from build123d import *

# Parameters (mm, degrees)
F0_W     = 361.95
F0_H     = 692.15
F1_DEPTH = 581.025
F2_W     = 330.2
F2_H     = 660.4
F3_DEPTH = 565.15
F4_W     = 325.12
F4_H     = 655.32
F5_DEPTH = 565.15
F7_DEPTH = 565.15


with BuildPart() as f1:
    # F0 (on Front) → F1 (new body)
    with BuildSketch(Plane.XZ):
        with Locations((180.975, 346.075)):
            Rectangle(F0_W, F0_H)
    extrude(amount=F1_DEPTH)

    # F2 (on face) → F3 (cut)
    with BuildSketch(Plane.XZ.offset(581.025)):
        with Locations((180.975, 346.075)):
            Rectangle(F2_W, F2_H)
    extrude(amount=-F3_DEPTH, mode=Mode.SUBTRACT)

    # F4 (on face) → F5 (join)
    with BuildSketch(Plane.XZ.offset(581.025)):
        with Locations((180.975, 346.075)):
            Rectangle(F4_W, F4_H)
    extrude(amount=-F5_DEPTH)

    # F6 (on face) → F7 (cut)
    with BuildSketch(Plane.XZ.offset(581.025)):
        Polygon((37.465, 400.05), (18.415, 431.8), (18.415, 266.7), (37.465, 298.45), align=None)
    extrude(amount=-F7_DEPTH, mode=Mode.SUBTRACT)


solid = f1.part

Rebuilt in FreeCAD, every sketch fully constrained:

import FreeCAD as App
import Part
import Sketcher

V = App.Vector
Q = App.Units.Quantity

doc = App.newDocument("Part")
params = doc.addObject("Spreadsheet::Sheet", "Params")
for row, (alias, value) in enumerate([
    ("sketch1_width", "14.25 in"),
    ("sketch1_height", "27.25 in"),
    ("pad1_length", "22.875 in"),
    ("sketch2_width", "13 in"),
    ("sketch2_height", "26 in"),
    ("pocket1_length", "22.25 in"),
    ("sketch3_width", "12.8 in"),
    ("sketch3_height", "25.8 in"),
    ("pad2_length", "22.25 in"),
    ("sketch4_height", "4 in"),
    ("sketch4_height2", "6.5 in"),
    ("pocket2_length", "22.25 in"),
], start=1):
    params.set(f"A{row}", alias)
    params.set(f"B{row}", "=" + value)
    params.setAlias(f"B{row}", alias)

body = doc.addObject("PartDesign::Body", "Body")

sketch1 = body.newObject("Sketcher::SketchObject", "Sketch")
sketch1.AttachmentSupport = (doc.getObject("XZ_Plane"), [""])
sketch1.MapMode = "FlatFace"
sketch1.addGeometry([
    Part.LineSegment(V(0, 692, 0), V(0, 0, 0)),
    Part.LineSegment(V(0, 0, 0), V(362, 0, 0)),
    Part.LineSegment(V(362, 0, 0), V(362, 692, 0)),
    Part.LineSegment(V(362, 692, 0), V(0, 692, 0)),
], False)
sketch1.addConstraint([
    Sketcher.Constraint("Coincident", 0, 2, 1, 1),
    Sketcher.Constraint("Coincident", 1, 2, 2, 1),
    Sketcher.Constraint("Coincident", 2, 2, 3, 1),
    Sketcher.Constraint("Coincident", 3, 2, 0, 1),
    Sketcher.Constraint("Vertical", 0),
    Sketcher.Constraint("Horizontal", 1),
    Sketcher.Constraint("Vertical", 2),
    Sketcher.Constraint("Horizontal", 3),
    Sketcher.Constraint("Coincident", 0, 2, -1, 1),
    Sketcher.Constraint("DistanceX", 1, 1, 1, 2, Q("14.25 in")),
    Sketcher.Constraint("DistanceY", 0, 2, 0, 1, Q("27.25 in")),
])
sketch1.setExpression("Constraints[9]", "Params.sketch1_width")
sketch1.setExpression("Constraints[10]", "Params.sketch1_height")
pad1 = body.newObject("PartDesign::Pad", "Pad")
pad1.Profile = sketch1
pad1.setExpression("Length", "Params.pad1_length")

sketch2 = body.newObject("Sketcher::SketchObject", "Sketch001")
sketch2.AttachmentSupport = (doc.getObject("XZ_Plane"), [""])
sketch2.MapMode = "FlatFace"
sketch2.AttachmentOffset = App.Placement(V(0, 0, 22.875 * 25.4), App.Rotation())
sketch2.addGeometry([
    Part.LineSegment(V(16, 676, 0), V(16, 16, 0)),
    Part.LineSegment(V(16, 16, 0), V(346, 16, 0)),
    Part.LineSegment(V(346, 16, 0), V(346, 676, 0)),
    Part.LineSegment(V(346, 676, 0), V(16, 676, 0)),
], False)
sketch2.addConstraint([
    Sketcher.Constraint("Coincident", 0, 2, 1, 1),
    Sketcher.Constraint("Coincident", 1, 2, 2, 1),
    Sketcher.Constraint("Coincident", 2, 2, 3, 1),
    Sketcher.Constraint("Coincident", 3, 2, 0, 1),
    Sketcher.Constraint("Vertical", 0),
    Sketcher.Constraint("Horizontal", 1),
    Sketcher.Constraint("Vertical", 2),
    Sketcher.Constraint("Horizontal", 3),
    Sketcher.Constraint("DistanceX", 1, 1, 1, 2, Q("13 in")),
    Sketcher.Constraint("DistanceY", 0, 2, 0, 1, Q("26 in")),
    Sketcher.Constraint("DistanceX", -1, 1, 0, 2, Q("0.625 in")),
    Sketcher.Constraint("DistanceY", -1, 1, 0, 2, Q("0.625 in")),
])
sketch2.setExpression("Constraints[8]", "Params.sketch2_width")
sketch2.setExpression("Constraints[9]", "Params.sketch2_height")
pocket1 = body.newObject("PartDesign::Pocket", "Pocket")
pocket1.Profile = sketch2
pocket1.setExpression("Length", "Params.pocket1_length")

sketch3 = body.newObject("Sketcher::SketchObject", "Sketch002")
sketch3.AttachmentSupport = (doc.getObject("XZ_Plane"), [""])
sketch3.MapMode = "FlatFace"
sketch3.AttachmentOffset = App.Placement(V(0, 0, 22.875 * 25.4), App.Rotation())
sketch3.addGeometry([
    Part.LineSegment(V(18, 674, 0), V(18, 18, 0)),
    Part.LineSegment(V(18, 18, 0), V(344, 18, 0)),
    Part.LineSegment(V(344, 18, 0), V(344, 674, 0)),
    Part.LineSegment(V(344, 674, 0), V(18, 674, 0)),
], False)
sketch3.addConstraint([
    Sketcher.Constraint("Coincident", 0, 2, 1, 1),
    Sketcher.Constraint("Coincident", 1, 2, 2, 1),
    Sketcher.Constraint("Coincident", 2, 2, 3, 1),
    Sketcher.Constraint("Coincident", 3, 2, 0, 1),
    Sketcher.Constraint("Vertical", 0),
    Sketcher.Constraint("Horizontal", 1),
    Sketcher.Constraint("Vertical", 2),
    Sketcher.Constraint("Horizontal", 3),
    Sketcher.Constraint("DistanceX", 1, 1, 1, 2, Q("12.8 in")),
    Sketcher.Constraint("DistanceY", 0, 2, 0, 1, Q("25.8 in")),
    Sketcher.Constraint("DistanceX", -1, 1, 0, 2, Q("0.725 in")),
    Sketcher.Constraint("DistanceY", -1, 1, 0, 2, Q("0.725 in")),
])
sketch3.setExpression("Constraints[8]", "Params.sketch3_width")
sketch3.setExpression("Constraints[9]", "Params.sketch3_height")
pad2 = body.newObject("PartDesign::Pad", "Pad001")
pad2.Profile = sketch3
pad2.setExpression("Length", "Params.pad2_length")
pad2.Reversed = True

sketch4 = body.newObject("Sketcher::SketchObject", "Sketch003")
sketch4.AttachmentSupport = (doc.getObject("XZ_Plane"), [""])
sketch4.MapMode = "FlatFace"
sketch4.AttachmentOffset = App.Placement(V(0, 0, 22.875 * 25.4), App.Rotation())
sketch4.addGeometry([
    Part.LineSegment(V(37, 400, 0), V(18, 432, 0)),
    Part.LineSegment(V(18, 432, 0), V(18, 267, 0)),
    Part.LineSegment(V(18, 267, 0), V(37, 298, 0)),
    Part.LineSegment(V(37, 298, 0), V(37, 400, 0)),
], False)
sketch4.addConstraint([
    Sketcher.Constraint("Coincident", 0, 2, 1, 1),
    Sketcher.Constraint("Coincident", 1, 2, 2, 1),
    Sketcher.Constraint("Coincident", 2, 2, 3, 1),
    Sketcher.Constraint("Coincident", 3, 2, 0, 1),
    Sketcher.Constraint("Vertical", 1),
    Sketcher.Constraint("Vertical", 3),
    Sketcher.Constraint("Equal", 0, 2),
    Sketcher.Constraint("DistanceY", 3, 1, 3, 2, Q("4 in")),
    Sketcher.Constraint("DistanceY", 1, 2, 1, 1, Q("6.5 in")),
    Sketcher.Constraint("DistanceY", -1, 1, 0, 2, Q("17 in")),
    Sketcher.Constraint("DistanceX", 1, 2, 2, 2, Q("0.75 in")),
    Sketcher.Constraint("DistanceX", -1, 1, 0, 2, Q("0.725 in")),
])
sketch4.setExpression("Constraints[7]", "Params.sketch4_height")
sketch4.setExpression("Constraints[8]", "Params.sketch4_height2")
pocket2 = body.newObject("PartDesign::Pocket", "Pocket001")
pocket2.Profile = sketch4
pocket2.setExpression("Length", "Params.pocket2_length")

doc.recompute()
